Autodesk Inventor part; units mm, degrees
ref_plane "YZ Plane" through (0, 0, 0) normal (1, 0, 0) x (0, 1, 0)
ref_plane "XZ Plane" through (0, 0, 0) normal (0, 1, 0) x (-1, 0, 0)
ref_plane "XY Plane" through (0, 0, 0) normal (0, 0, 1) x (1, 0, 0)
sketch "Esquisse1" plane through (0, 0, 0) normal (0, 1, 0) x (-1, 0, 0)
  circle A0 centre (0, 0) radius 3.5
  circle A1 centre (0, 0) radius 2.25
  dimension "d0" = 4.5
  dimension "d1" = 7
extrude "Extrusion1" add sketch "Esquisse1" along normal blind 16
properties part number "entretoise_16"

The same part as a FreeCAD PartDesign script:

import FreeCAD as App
import Part
import Sketcher

doc = App.newDocument("Part")
body = doc.addObject("PartDesign::Body", "Body")

# Sketch on XZ plane
sketch1 = body.newObject("Sketcher::SketchObject", "Sketch")
sketch1.AttachmentSupport = (doc.getObject("XZ_Plane"), [""])
sketch1.MapMode = "FlatFace"
sketch1.addGeometry(Part.Circle(App.Vector(0, 0, 0), App.Vector(0, 0, 1), 3.5), False)
sketch1.addGeometry(Part.Circle(App.Vector(0, 0, 0), App.Vector(0, 0, 1), 2.25), False)
sketch1.addConstraint(Sketcher.Constraint("Coincident", 0, 3, -1, 1))
sketch1.addConstraint(Sketcher.Constraint("Coincident", 1, 3, -1, 1))
sketch1.addConstraint(Sketcher.Constraint("Diameter", 0, 7.0))
sketch1.addConstraint(Sketcher.Constraint("Diameter", 1, 4.5))
pad1 = body.newObject("PartDesign::Pad", "Pad")
pad1.Profile = sketch1
pad1.Length = 16
pad1.Reversed = True

doc.recompute()
